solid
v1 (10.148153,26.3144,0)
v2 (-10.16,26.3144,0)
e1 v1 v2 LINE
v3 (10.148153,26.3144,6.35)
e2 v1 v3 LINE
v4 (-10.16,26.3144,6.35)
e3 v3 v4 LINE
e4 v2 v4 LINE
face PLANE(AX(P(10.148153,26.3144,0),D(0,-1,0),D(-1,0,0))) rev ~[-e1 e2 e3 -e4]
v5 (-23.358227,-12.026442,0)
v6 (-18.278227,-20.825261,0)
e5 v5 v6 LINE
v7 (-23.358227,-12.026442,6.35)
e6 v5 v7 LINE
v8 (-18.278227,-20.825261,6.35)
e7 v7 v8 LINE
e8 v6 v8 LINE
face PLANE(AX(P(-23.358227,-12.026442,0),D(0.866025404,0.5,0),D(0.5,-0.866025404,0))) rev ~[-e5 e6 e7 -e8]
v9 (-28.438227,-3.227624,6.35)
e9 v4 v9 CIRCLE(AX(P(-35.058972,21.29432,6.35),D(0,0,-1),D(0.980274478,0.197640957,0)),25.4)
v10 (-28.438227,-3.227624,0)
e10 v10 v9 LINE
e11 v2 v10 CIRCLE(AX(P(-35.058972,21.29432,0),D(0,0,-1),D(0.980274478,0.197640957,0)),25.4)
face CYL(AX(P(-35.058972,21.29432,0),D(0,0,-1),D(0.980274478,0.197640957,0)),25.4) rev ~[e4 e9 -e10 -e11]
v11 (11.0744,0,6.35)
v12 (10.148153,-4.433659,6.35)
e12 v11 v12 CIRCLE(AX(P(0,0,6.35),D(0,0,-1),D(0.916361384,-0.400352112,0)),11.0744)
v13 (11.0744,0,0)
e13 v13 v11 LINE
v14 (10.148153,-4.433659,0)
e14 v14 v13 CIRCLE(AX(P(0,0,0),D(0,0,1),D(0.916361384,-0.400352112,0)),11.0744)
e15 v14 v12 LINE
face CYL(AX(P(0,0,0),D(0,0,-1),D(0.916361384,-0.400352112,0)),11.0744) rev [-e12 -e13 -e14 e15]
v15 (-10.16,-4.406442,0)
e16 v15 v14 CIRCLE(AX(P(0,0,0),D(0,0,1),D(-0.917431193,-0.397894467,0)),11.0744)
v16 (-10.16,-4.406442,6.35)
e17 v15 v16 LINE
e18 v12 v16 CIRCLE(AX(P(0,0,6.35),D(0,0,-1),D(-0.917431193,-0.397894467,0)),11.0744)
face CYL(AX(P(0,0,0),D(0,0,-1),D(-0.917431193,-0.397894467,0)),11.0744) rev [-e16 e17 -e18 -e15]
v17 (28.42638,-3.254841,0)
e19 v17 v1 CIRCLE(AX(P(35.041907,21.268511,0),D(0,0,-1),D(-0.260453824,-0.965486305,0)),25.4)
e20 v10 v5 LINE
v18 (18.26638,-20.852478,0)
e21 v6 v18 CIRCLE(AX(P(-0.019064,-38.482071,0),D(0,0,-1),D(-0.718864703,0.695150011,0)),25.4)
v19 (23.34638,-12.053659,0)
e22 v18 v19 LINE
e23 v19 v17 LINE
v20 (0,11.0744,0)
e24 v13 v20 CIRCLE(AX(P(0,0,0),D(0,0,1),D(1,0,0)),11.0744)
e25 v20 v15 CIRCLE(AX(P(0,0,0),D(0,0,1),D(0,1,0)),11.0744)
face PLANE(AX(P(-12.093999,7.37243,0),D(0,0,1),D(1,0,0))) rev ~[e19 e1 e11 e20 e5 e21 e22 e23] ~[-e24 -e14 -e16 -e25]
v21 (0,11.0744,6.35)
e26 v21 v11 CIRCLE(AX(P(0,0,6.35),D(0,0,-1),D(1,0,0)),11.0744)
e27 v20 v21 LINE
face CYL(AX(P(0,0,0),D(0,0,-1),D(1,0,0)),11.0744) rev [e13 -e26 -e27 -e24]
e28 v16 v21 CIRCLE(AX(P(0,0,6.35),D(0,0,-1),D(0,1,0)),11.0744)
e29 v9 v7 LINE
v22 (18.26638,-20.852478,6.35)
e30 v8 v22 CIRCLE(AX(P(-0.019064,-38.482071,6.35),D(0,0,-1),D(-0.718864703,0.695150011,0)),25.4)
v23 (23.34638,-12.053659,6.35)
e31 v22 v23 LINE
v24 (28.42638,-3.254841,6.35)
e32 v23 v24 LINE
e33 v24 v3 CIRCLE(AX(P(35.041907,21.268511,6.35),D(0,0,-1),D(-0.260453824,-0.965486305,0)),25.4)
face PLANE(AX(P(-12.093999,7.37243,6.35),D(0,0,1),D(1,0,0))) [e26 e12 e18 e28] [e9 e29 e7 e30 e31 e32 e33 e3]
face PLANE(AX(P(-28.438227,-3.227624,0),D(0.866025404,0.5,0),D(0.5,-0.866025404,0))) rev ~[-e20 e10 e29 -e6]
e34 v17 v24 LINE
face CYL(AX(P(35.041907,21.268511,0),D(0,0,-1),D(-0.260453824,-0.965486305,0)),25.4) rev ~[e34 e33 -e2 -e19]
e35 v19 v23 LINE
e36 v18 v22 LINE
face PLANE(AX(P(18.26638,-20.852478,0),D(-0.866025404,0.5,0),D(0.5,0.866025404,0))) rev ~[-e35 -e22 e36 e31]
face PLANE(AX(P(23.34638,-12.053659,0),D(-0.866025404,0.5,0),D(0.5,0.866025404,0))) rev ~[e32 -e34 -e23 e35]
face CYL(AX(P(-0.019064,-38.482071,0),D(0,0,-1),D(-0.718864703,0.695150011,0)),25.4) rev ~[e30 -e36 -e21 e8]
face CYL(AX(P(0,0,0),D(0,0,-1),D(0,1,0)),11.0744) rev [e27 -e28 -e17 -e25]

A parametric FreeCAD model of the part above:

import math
import FreeCAD as App
import Part
import Sketcher
from FreeCAD import Vector
Q = App.Units.Quantity

doc = App.newDocument("Part")
params = doc.addObject("Spreadsheet::Sheet", "Params")
for row, (alias, value) in enumerate([
    ("sketch1_radius", "1 in"),
    ("sketch1_length", "0.4 in"),
    ("pad1_length", "0.25 in"),
    ("sketch2_radius", "0.436 in"),
    ("pocket1_length", "36 in"),
], start=1):
    params.set(f"A{row}", alias)
    params.set(f"B{row}", "=" + value)
    params.setAlias(f"B{row}", alias)

body = doc.addObject("PartDesign::Body", "Body")

# Sketch on XY plane
sketch1 = body.newObject("Sketcher::SketchObject", "Sketch")
sketch1.AttachmentSupport = (doc.getObject("XY_Plane"), [""])
sketch1.MapMode = "FlatFace"
sketch1.addGeometry(Part.ArcOfCircle(Part.Circle(Vector(-35.058972, 21.29432, 0), Vector(0, 0, 1), 25.4), math.radians(-74.890818), math.radians(11.399042)), False)
sketch1.addGeometry(Part.LineSegment(Vector(-28.438227, -3.227624, 0), Vector(-23.358227, -12.026442, 0)), False)
sketch1.addGeometry(Part.LineSegment(Vector(-23.358227, -12.026442, 0), Vector(-18.278227, -20.825261, 0)), False)
sketch1.addGeometry(Part.ArcOfCircle(Part.Circle(Vector(-0.019064, -38.482071, 0), Vector(0, 0, 1), 25.4), math.radians(43.953829), math.radians(135.960828)), False)
sketch1.addGeometry(Part.LineSegment(Vector(18.26638, -20.852478, 0), Vector(23.34638, -12.053659, 0)), False)
sketch1.addGeometry(Part.LineSegment(Vector(23.34638, -12.053659, 0), Vector(28.42638, -3.254841, 0)), False)
sketch1.addGeometry(Part.ArcOfCircle(Part.Circle(Vector(35.041907, 21.268511, 0), Vector(0, 0, 1), 25.4), math.radians(168.541562), math.radians(254.903008)), False)
sketch1.addGeometry(Part.LineSegment(Vector(10.148153, 26.3144, 0), Vector(-10.16, 26.3144, 0)), False)
sketch1.addConstraint(Sketcher.Constraint("Coincident", 0, 1, 1, 1))
sketch1.addConstraint(Sketcher.Constraint("Coincident", 1, 2, 2, 1))
sketch1.addConstraint(Sketcher.Constraint("Coincident", 2, 2, 3, 2))
sketch1.addConstraint(Sketcher.Constraint("Coincident", 3, 1, 4, 1))
sketch1.addConstraint(Sketcher.Constraint("Coincident", 4, 2, 5, 1))
sketch1.addConstraint(Sketcher.Constraint("Coincident", 5, 2, 6, 2))
sketch1.addConstraint(Sketcher.Constraint("Coincident", 6, 1, 7, 1))
sketch1.addConstraint(Sketcher.Constraint("Coincident", 7, 2, 0, 2))
sketch1.addConstraint(Sketcher.Constraint("Horizontal", 7))
sketch1.addConstraint(Sketcher.Constraint("Equal", 0, 3))
sketch1.addConstraint(Sketcher.Constraint("Equal", 3, 6))
sketch1.addConstraint(Sketcher.Constraint("Parallel", 1, 2))
sketch1.addConstraint(Sketcher.Constraint("Parallel", 4, 5))
sketch1.addConstraint(Sketcher.Constraint("Equal", 1, 2))
sketch1.addConstraint(Sketcher.Constraint("Equal", 2, 4))
sketch1.addConstraint(Sketcher.Constraint("Equal", 4, 5))
sketch1.addConstraint(Sketcher.Constraint("Radius", 0, Q("1 in")))
sketch1.addConstraint(Sketcher.Constraint("Angle", 1, Q("-60 deg")))
sketch1.addConstraint(Sketcher.Constraint("Angle", 4, Q("60 deg")))
sketch1.addConstraint(Sketcher.Constraint("Distance", 1, Q("0.4 in")))
sketch1.addConstraint(Sketcher.Constraint("DistanceX", 7, 2, -1, 1, Q("0.4 in")))
sketch1.addConstraint(Sketcher.Constraint("DistanceY", -1, 1, 6, 1, Q("1.036 in")))
sketch1.addConstraint(Sketcher.Constraint("DistanceY", 2, 2, 4, 2, Q("8.771601 mm")))
sketch1.addConstraint(Sketcher.Constraint("DistanceX", 7, 2, 7, 1, Q("20.308153 mm")))
sketch1.addConstraint(Sketcher.Constraint("DistanceX", 0, 3, -1, 1, Q("35.058972 mm")))
sketch1.addConstraint(Sketcher.Constraint("DistanceY", 3, 3, -1, 1, Q("38.482071 mm")))
sketch1.addConstraint(Sketcher.Constraint("DistanceY", -1, 1, 6, 3, Q("21.268511 mm")))
sketch1.setExpression("Constraints[16]", "Params.sketch1_radius")
sketch1.setExpression("Constraints[19]", "Params.sketch1_length")
pad1 = body.newObject("PartDesign::Pad", "Pad")
pad1.Profile = sketch1
pad1.setExpression("Length", "Params.pad1_length")

# Sketch on XY plane
sketch2 = body.newObject("Sketcher::SketchObject", "Sketch001")
sketch2.AttachmentSupport = (doc.getObject("XY_Plane"), [""])
sketch2.MapMode = "FlatFace"
sketch2.addGeometry(Part.ArcOfCircle(Part.Circle(Vector(0, 0, 0), Vector(0, 0, 1), 11.0744), math.radians(-23.600193), math.radians(0)), False)
sketch2.addGeometry(Part.ArcOfCircle(Part.Circle(Vector(0, 0, 0), Vector(0, 0, 1), 11.0744), math.radians(0), math.radians(90)), False)
sketch2.addGeometry(Part.ArcOfCircle(Part.Circle(Vector(0, 0, 0), Vector(0, 0, 1), 11.0744), math.radians(90), math.radians(203.446617)), False)
sketch2.addGeometry(Part.ArcOfCircle(Part.Circle(Vector(0, 0, 0), Vector(0, 0, 1), 11.0744), math.radians(-156.553383), math.radians(-23.600193)), False)
sketch2.addConstraint(Sketcher.Constraint("Tangent", 0, 2, 1, 1))
sketch2.addConstraint(Sketcher.Constraint("Tangent", 1, 2, 2, 1))
sketch2.addConstraint(Sketcher.Constraint("Tangent", 2, 2, 3, 1))
sketch2.addConstraint(Sketcher.Constraint("Tangent", 3, 2, 0, 1))
sketch2.addConstraint(Sketcher.Constraint("Coincident", 0, 3, -1, 1))
sketch2.addConstraint(Sketcher.Constraint("Equal", 0, 1))
sketch2.addConstraint(Sketcher.Constraint("PointOnObject", 0, 2, -1))
sketch2.addConstraint(Sketcher.Constraint("PointOnObject", 1, 2, -2))
sketch2.addConstraint(Sketcher.Constraint("Radius", 0, Q("0.436 in")))
sketch2.addConstraint(Sketcher.Constraint("DistanceX", 2, 2, -1, 1, Q("0.4 in")))
sketch2.addConstraint(Sketcher.Constraint("DistanceY", 3, 2, -1, 1, Q("4.433659 mm")))
sketch2.setExpression("Constraints[8]", "Params.sketch2_radius")
pocket1 = body.newObject("PartDesign::Pocket", "Pocket")
pocket1.Profile = sketch2
pocket1.setExpression("Length", "Params.pocket1_length")
pocket1.Reversed = True

doc.recompute()
